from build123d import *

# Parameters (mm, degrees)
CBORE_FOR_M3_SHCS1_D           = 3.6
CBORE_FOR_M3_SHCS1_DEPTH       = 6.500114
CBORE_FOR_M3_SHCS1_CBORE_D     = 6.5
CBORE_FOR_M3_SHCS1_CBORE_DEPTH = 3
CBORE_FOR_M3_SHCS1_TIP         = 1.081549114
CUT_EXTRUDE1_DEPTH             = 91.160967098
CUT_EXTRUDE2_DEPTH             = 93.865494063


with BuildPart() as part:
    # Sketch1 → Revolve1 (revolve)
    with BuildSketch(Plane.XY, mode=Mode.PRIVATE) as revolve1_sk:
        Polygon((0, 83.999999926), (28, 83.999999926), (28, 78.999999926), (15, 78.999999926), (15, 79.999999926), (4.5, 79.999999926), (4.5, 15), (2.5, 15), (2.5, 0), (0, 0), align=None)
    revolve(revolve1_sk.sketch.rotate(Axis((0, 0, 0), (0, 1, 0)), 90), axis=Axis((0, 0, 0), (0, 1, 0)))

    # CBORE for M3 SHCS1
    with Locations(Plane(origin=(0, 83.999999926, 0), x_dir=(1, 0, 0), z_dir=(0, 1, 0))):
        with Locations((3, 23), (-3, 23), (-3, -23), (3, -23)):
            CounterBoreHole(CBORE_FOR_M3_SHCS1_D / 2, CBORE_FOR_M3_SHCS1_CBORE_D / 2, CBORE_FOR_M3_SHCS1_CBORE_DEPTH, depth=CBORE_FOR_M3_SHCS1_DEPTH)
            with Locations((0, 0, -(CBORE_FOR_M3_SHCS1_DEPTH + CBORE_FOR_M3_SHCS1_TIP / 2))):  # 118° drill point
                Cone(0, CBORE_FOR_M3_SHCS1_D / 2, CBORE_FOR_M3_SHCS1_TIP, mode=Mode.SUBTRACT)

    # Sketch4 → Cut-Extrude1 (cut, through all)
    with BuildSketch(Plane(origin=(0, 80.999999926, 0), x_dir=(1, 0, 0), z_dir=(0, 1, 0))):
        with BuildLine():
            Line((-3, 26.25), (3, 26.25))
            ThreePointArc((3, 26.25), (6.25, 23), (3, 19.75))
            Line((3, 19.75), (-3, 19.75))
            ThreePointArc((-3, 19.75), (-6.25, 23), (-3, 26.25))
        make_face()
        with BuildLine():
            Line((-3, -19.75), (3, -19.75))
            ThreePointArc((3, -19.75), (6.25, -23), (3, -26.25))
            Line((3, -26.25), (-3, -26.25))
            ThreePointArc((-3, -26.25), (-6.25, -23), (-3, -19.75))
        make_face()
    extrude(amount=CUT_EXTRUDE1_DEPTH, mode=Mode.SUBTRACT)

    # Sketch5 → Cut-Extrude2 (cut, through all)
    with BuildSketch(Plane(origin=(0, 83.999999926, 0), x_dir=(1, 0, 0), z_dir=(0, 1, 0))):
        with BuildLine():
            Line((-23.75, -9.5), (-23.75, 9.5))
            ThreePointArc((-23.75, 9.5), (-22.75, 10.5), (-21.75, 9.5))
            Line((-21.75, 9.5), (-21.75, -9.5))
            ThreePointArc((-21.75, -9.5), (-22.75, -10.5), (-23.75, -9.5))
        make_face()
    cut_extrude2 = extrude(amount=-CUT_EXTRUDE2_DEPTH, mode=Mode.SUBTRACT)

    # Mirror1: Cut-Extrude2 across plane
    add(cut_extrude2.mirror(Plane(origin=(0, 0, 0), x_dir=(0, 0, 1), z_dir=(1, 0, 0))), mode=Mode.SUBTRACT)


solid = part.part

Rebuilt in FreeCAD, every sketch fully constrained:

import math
import FreeCAD as App
import Part
import Sketcher
from FreeCAD import Vector

doc = App.newDocument("Part")
body = doc.addObject("PartDesign::Body", "Body")

# Sketch on XY plane
sketch1 = doc.addObject("Sketcher::SketchObject", "Sketch")
body.addObject(sketch1)
sketch1.AttachmentSupport = (doc.XY_Plane, [""])
sketch1.MapMode = "FlatFace"
sketch1.addGeometry(Part.LineSegment(Vector(28, 84, 0), Vector(0, 84, 0)), False)
sketch1.addGeometry(Part.LineSegment(Vector(0, 84, 0), Vector(0, 0, 0)), False)
sketch1.addGeometry(Part.LineSegment(Vector(0, 0, 0), Vector(2.5, 0, 0)), False)
sketch1.addGeometry(Part.LineSegment(Vector(2.5, 0, 0), Vector(2.5, 15, 0)), False)
sketch1.addGeometry(Part.LineSegment(Vector(2.5, 15, 0), Vector(4.5, 15, 0)), False)
sketch1.addGeometry(Part.LineSegment(Vector(4.5, 15, 0), Vector(4.5, 80, 0)), False)
sketch1.addGeometry(Part.LineSegment(Vector(4.5, 80, 0), Vector(15, 80, 0)), False)
sketch1.addGeometry(Part.LineSegment(Vector(15, 80, 0), Vector(15, 79, 0)), False)
sketch1.addGeometry(Part.LineSegment(Vector(15, 79, 0), Vector(28, 79, 0)), False)
sketch1.addGeometry(Part.LineSegment(Vector(28, 79, 0), Vector(28, 84, 0)), False)
sketch1.addConstraint(Sketcher.Constraint("Coincident", 0, 2, 1, 1))
sketch1.addConstraint(Sketcher.Constraint("Coincident", 1, 2, 2, 1))
sketch1.addConstraint(Sketcher.Constraint("Coincident", 2, 2, 3, 1))
sketch1.addConstraint(Sketcher.Constraint("Coincident", 3, 2, 4, 1))
sketch1.addConstraint(Sketcher.Constraint("Coincident", 4, 2, 5, 1))
sketch1.addConstraint(Sketcher.Constraint("Coincident", 5, 2, 6, 1))
sketch1.addConstraint(Sketcher.Constraint("Coincident", 6, 2, 7, 1))
sketch1.addConstraint(Sketcher.Constraint("Coincident", 7, 2, 8, 1))
sketch1.addConstraint(Sketcher.Constraint("Coincident", 8, 2, 9, 1))
sketch1.addConstraint(Sketcher.Constraint("Coincident", 9, 2, 0, 1))
sketch1.addConstraint(Sketcher.Constraint("Horizontal", 0))
sketch1.addConstraint(Sketcher.Constraint("Vertical", 1))
sketch1.addConstraint(Sketcher.Constraint("Horizontal", 2))
sketch1.addConstraint(Sketcher.Constraint("Vertical", 3))
sketch1.addConstraint(Sketcher.Constraint("Horizontal", 4))
sketch1.addConstraint(Sketcher.Constraint("Vertical", 5))
sketch1.addConstraint(Sketcher.Constraint("Horizontal", 6))
sketch1.addConstraint(Sketcher.Constraint("Vertical", 7))
sketch1.addConstraint(Sketcher.Constraint("Horizontal", 8))
sketch1.addConstraint(Sketcher.Constraint("Vertical", 9))
sketch1.addConstraint(Sketcher.Constraint("Coincident", 1, 2, -1, 1))
sketch1.addConstraint(Sketcher.Constraint("DistanceX", 0, 2, 0, 1, 28.0))
sketch1.addConstraint(Sketcher.Constraint("DistanceX", 4, 1, 4, 2, 2.0))
sketch1.addConstraint(Sketcher.Constraint("DistanceX", 8, 1, 8, 2, 13.0))
sketch1.addConstraint(Sketcher.Constraint("DistanceY", 1, 2, 1, 1, 84.0))
sketch1.addConstraint(Sketcher.Constraint("DistanceY", 3, 1, 3, 2, 15.0))
sketch1.addConstraint(Sketcher.Constraint("DistanceY", 5, 1, 5, 2, 65.0))
sketch1.addConstraint(Sketcher.Constraint("DistanceY", 7, 2, 7, 1, 1.0))
sketch1.addConstraint(Sketcher.Constraint("DistanceX", 2, 1, 2, 2, 2.5))
revolution = doc.addObject("PartDesign::Revolution", "Revolution")
body.addObject(revolution)
revolution.Profile = sketch1
revolution.ReferenceAxis = (sketch1, ["V_Axis"])
revolution.Angle = 360

# Sketch on XZ plane
sketch2 = doc.addObject("Sketcher::SketchObject", "Sketch001")
body.addObject(sketch2)
sketch2.AttachmentSupport = (doc.XZ_Plane, [""])
sketch2.MapMode = "FlatFace"
sketch2.AttachmentOffset = App.Placement(Vector(0, 0, -84), App.Rotation())
sketch2.addGeometry(Part.Circle(Vector(3, -23, 0), Vector(0, 0, 1), 1.8), False)
sketch2.addGeometry(Part.Circle(Vector(-3, -23, 0), Vector(0, 0, 1), 1.8), False)
sketch2.addGeometry(Part.Circle(Vector(-3, 23, 0), Vector(0, 0, 1), 1.8), False)
sketch2.addGeometry(Part.Circle(Vector(3, 23, 0), Vector(0, 0, 1), 1.8), False)
sketch2.addConstraint(Sketcher.Constraint("Equal", 0, 1))
sketch2.addConstraint(Sketcher.Constraint("Equal", 1, 2))
sketch2.addConstraint(Sketcher.Constraint("Equal", 2, 3))
sketch2.addConstraint(Sketcher.Constraint("Symmetric", 0, 3, 2, 3, -1, 1))
sketch2.addConstraint(Sketcher.Constraint("Symmetric", 1, 3, 3, 3, -1, 1))
sketch2.addConstraint(Sketcher.Constraint("Symmetric", 0, 3, 1, 3, -2))
sketch2.addConstraint(Sketcher.Constraint("Diameter", 0, 3.6))
sketch2.addConstraint(Sketcher.Constraint("DistanceX", -1, 1, 0, 3, 3.0))
sketch2.addConstraint(Sketcher.Constraint("DistanceY", 0, 3, -1, 1, 23.0))
doc.recompute()
hole = doc.addObject("PartDesign::Hole", "Hole")
body.addObject(hole)
hole.Profile = sketch2
hole.ThreadType = "None"
hole.Diameter = 3.6
hole.DepthType = "Dimension"
hole.Depth = 6.500114
hole.DrillPoint = "Angled"
hole.DrillPointAngle = 118
hole.HoleCutType = "Counterbore"
hole.HoleCutDiameter = 6.5
hole.HoleCutDepth = 3
hole.Reversed = True

# Sketch on XZ plane
sketch3 = doc.addObject("Sketcher::SketchObject", "Sketch002")
body.addObject(sketch3)
sketch3.AttachmentSupport = (doc.XZ_Plane, [""])
sketch3.MapMode = "FlatFace"
sketch3.AttachmentOffset = App.Placement(Vector(0, 0, -81), App.Rotation())
sketch3.addGeometry(Part.LineSegment(Vector(3, -26.2, 0), Vector(-3, -26.2, 0)), False)
sketch3.addGeometry(Part.ArcOfCircle(Part.Circle(Vector(-3, -23, 0), Vector(0, 0, 1), 3.2), math.radians(90), math.radians(270)), False)
sketch3.addGeometry(Part.LineSegment(Vector(-3, -19.8, 0), Vector(3, -19.8, 0)), False)
sketch3.addGeometry(Part.ArcOfCircle(Part.Circle(Vector(3, -23, 0), Vector(0, 0, 1), 3.2), math.radians(-90), math.radians(90)), False)
sketch3.addGeometry(Part.LineSegment(Vector(3, 19.8, 0), Vector(-3, 19.8, 0)), False)
sketch3.addGeometry(Part.ArcOfCircle(Part.Circle(Vector(-3, 23, 0), Vector(0, 0, 1), 3.2), math.radians(90), math.radians(270)), False)
sketch3.addGeometry(Part.LineSegment(Vector(-3, 26.2, 0), Vector(3, 26.2, 0)), False)
sketch3.addGeometry(Part.ArcOfCircle(Part.Circle(Vector(3, 23, 0), Vector(0, 0, 1), 3.2), math.radians(-90), math.radians(90)), False)
sketch3.addConstraint(Sketcher.Constraint("Tangent", 0, 2, 1, 2))
sketch3.addConstraint(Sketcher.Constraint("Tangent", 1, 1, 2, 1))
sketch3.addConstraint(Sketcher.Constraint("Tangent", 2, 2, 3, 2))
sketch3.addConstraint(Sketcher.Constraint("Tangent", 3, 1, 0, 1))
sketch3.addConstraint(Sketcher.Constraint("Tangent", 4, 2, 5, 2))
sketch3.addConstraint(Sketcher.Constraint("Tangent", 5, 1, 6, 1))
sketch3.addConstraint(Sketcher.Constraint("Tangent", 6, 2, 7, 2))
sketch3.addConstraint(Sketcher.Constraint("Tangent", 7, 1, 4, 1))
sketch3.addConstraint(Sketcher.Constraint("Horizontal", 0))
sketch3.addConstraint(Sketcher.Constraint("Horizontal", 2))
sketch3.addConstraint(Sketcher.Constraint("Horizontal", 4))
sketch3.addConstraint(Sketcher.Constraint("Horizontal", 6))
sketch3.addConstraint(Sketcher.Constraint("Equal", 3, 5))
sketch3.addConstraint(Sketcher.Constraint("Symmetric", 3, 3, 5, 3, -1, 1))
sketch3.addConstraint(Sketcher.Constraint("Vertical", 1, 3, 5, 3))
sketch3.addConstraint(Sketcher.Constraint("Vertical", 3, 3, 7, 3))
sketch3.addConstraint(Sketcher.Constraint("DistanceX", 0, 2, 0, 1, 6.0))
sketch3.addConstraint(Sketcher.Constraint("Radius", 1, 3.25))
sketch3.addConstraint(Sketcher.Constraint("DistanceY", 1, 3, -1, 1, 23.0))
pocket1 = doc.addObject("PartDesign::Pocket", "Pocket")
body.addObject(pocket1)
pocket1.Profile = sketch3
pocket1.Type = "ThroughAll"

# Sketch on XZ plane
sketch4 = doc.addObject("Sketcher::SketchObject", "Sketch003")
body.addObject(sketch4)
sketch4.AttachmentSupport = (doc.XZ_Plane, [""])
sketch4.MapMode = "FlatFace"
sketch4.AttachmentOffset = App.Placement(Vector(0, 0, -84), App.Rotation())
sketch4.addGeometry(Part.LineSegment(Vector(-23.8, -9.5, 0), Vector(-23.8, 9.5, 0)), False)
sketch4.addGeometry(Part.ArcOfCircle(Part.Circle(Vector(-22.8, 9.5, 0), Vector(0, 0, 1), 1), math.radians(0), math.radians(180)), False)
sketch4.addGeometry(Part.LineSegment(Vector(-21.8, 9.5, 0), Vector(-21.8, -9.5, 0)), False)
sketch4.addGeometry(Part.ArcOfCircle(Part.Circle(Vector(-22.8, -9.5, 0), Vector(0, 0, 1), 1), math.radians(180), math.radians(360)), False)
sketch4.addConstraint(Sketcher.Constraint("Tangent", 0, 2, 1, 2))
sketch4.addConstraint(Sketcher.Constraint("Tangent", 1, 1, 2, 1))
sketch4.addConstraint(Sketcher.Constraint("Tangent", 2, 2, 3, 2))
sketch4.addConstraint(Sketcher.Constraint("Tangent", 3, 1, 0, 1))
sketch4.addConstraint(Sketcher.Constraint("Vertical", 0))
sketch4.addConstraint(Sketcher.Constraint("Vertical", 2))
sketch4.addConstraint(Sketcher.Constraint("Radius", 1, 1.0))
sketch4.addConstraint(Sketcher.Constraint("DistanceY", 0, 1, 0, 2, 19.0))
sketch4.addConstraint(Sketcher.Constraint("DistanceY", -1, 1, 1, 3, 9.5))
sketch4.addConstraint(Sketcher.Constraint("DistanceX", 1, 3, -1, 1, 22.75))
pocket2 = doc.addObject("PartDesign::Pocket", "Pocket001")
body.addObject(pocket2)
pocket2.Profile = sketch4
pocket2.Type = "ThroughAll"
pocket2.Reversed = True
doc.recompute()

mirrored = doc.addObject("PartDesign::Mirrored", "Mirrored")
body.addObject(mirrored)
mirrored.Originals = [pocket2]
mirrored.MirrorPlane = (doc.YZ_Plane, [""])
body.Tip = mirrored

doc.recompute()
